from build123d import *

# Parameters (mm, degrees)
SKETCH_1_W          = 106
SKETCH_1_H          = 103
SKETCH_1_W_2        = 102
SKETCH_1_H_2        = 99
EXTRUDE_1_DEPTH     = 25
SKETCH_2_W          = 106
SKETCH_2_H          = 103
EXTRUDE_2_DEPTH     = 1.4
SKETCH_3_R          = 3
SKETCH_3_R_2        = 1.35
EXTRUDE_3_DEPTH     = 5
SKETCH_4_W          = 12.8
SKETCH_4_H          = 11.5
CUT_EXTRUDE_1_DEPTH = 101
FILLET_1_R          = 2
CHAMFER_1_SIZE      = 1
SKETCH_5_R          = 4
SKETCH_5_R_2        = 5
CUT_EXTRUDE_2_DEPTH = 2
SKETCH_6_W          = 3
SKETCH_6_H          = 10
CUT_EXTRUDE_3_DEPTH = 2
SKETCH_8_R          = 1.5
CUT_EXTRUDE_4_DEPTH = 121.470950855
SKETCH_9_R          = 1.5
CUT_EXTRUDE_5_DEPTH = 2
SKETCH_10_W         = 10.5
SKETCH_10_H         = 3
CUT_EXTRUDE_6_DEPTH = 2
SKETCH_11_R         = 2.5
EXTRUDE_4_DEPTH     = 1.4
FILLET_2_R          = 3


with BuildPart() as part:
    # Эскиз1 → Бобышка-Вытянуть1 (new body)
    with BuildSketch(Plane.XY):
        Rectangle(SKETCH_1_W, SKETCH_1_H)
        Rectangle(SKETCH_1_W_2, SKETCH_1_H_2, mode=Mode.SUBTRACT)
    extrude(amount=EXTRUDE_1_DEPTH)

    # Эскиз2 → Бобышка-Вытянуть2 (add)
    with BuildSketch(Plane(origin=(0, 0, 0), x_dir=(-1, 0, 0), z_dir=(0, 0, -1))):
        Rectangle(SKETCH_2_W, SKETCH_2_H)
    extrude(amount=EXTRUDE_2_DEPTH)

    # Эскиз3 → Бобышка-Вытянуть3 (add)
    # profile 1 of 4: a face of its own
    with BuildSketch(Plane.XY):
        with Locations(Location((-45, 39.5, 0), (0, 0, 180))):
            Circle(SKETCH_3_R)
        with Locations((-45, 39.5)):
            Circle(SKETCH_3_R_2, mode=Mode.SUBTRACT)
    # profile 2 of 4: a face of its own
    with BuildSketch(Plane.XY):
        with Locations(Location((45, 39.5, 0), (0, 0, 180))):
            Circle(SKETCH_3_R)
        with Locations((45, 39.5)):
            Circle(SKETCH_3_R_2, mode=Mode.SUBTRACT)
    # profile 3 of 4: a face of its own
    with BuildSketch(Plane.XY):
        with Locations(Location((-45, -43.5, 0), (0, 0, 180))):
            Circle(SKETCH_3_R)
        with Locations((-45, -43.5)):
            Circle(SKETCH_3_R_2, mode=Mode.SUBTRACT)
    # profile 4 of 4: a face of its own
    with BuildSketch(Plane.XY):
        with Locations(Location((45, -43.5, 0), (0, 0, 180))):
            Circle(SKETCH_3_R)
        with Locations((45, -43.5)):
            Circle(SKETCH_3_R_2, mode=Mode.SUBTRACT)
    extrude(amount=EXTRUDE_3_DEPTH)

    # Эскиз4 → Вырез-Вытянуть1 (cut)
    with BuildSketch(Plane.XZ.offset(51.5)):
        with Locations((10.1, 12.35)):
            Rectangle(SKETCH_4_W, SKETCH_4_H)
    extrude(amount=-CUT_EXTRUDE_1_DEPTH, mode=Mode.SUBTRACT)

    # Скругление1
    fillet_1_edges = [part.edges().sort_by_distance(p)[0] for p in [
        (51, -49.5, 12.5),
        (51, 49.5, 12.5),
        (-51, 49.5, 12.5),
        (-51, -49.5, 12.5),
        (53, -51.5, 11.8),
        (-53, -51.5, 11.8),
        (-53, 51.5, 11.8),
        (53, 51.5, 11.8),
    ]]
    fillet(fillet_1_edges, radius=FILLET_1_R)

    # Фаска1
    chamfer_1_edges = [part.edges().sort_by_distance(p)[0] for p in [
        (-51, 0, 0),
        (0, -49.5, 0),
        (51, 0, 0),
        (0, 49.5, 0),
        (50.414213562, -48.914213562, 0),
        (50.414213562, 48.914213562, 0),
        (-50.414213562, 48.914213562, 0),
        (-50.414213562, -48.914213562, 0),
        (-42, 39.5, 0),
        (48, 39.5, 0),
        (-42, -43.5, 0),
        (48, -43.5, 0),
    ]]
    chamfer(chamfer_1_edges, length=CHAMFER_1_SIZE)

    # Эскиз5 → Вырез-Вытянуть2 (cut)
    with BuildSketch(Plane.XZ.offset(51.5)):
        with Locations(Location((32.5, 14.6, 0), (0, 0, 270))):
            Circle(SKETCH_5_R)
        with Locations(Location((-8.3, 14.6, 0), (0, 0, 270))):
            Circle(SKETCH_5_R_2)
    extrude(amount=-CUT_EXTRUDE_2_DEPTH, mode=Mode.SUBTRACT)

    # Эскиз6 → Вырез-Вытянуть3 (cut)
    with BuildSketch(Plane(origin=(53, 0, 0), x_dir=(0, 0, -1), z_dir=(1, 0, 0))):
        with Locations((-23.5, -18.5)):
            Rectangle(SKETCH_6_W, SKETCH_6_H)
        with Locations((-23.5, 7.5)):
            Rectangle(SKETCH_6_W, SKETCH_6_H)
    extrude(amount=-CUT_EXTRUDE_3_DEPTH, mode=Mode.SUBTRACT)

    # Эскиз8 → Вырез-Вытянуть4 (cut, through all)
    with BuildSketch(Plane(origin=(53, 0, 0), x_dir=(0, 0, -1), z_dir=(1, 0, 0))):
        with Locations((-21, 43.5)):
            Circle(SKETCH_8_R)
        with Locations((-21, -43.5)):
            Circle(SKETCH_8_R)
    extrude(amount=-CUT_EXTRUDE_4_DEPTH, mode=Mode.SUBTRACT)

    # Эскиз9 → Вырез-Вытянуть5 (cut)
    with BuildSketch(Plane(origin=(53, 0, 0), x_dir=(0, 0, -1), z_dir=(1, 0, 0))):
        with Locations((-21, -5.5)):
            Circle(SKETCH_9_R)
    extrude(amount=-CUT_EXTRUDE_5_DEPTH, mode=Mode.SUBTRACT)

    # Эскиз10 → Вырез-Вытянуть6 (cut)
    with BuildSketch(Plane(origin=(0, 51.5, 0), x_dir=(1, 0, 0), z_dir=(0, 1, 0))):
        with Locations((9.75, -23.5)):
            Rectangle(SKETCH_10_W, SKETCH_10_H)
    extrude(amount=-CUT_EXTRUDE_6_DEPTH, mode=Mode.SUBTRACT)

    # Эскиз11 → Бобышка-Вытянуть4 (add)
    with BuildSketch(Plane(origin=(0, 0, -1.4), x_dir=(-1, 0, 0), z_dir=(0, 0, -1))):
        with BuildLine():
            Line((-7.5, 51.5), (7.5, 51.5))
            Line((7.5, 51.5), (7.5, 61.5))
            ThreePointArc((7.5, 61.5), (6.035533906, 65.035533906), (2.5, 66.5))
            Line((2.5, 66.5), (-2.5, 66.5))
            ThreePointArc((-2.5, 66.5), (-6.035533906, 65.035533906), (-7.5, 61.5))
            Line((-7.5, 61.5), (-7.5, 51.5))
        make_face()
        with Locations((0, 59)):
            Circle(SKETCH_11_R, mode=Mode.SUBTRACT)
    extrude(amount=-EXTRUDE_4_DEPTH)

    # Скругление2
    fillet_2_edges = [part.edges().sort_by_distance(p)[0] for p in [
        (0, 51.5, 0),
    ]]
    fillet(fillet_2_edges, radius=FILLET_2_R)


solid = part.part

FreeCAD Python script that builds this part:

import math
import FreeCAD as App
import Part
import Sketcher

V = App.Vector


def edges_at(feature, points):
    """Names of the edges that pass closest to the given points."""
    edges = feature.Shape.Edges
    near = lambda p: min(range(len(edges)), key=lambda i: edges[i].distToShape(Part.Vertex(*p))[0])
    return sorted({f"Edge{near(p) + 1}" for p in points})

doc = App.newDocument("Part")
params = doc.addObject("Spreadsheet::Sheet", "Params")
for row, (alias, value) in enumerate([
    ("sketch1_width", "106 mm"),
    ("sketch1_width2", "102 mm"),
    ("sketch1_height", "103 mm"),
    ("sketch1_height2", "99 mm"),
    ("pad1_length", "25 mm"),
    ("sketch2_width", "106 mm"),
    ("sketch2_height", "103 mm"),
    ("pad2_length", "1.4 mm"),
    ("sketch3_diameter", "6 mm"),
    ("sketch3_diameter2", "2.7 mm"),
    ("pad3_length", "5 mm"),
    ("sketch4_width", "12.8 mm"),
    ("sketch4_height", "11.5 mm"),
    ("pocket1_length", "101 mm"),
    ("fillet_radius", "2 mm"),
    ("chamfer_size", "1 mm"),
    ("sketch5_diameter", "8 mm"),
    ("sketch5_diameter2", "10 mm"),
    ("pocket2_length", "2 mm"),
    ("sketch6_width", "10 mm"),
    ("sketch6_height", "3 mm"),
    ("pocket3_length", "2 mm"),
    ("sketch7_diameter", "3 mm"),
    ("sketch8_diameter", "3 mm"),
    ("pocket5_length", "2 mm"),
    ("sketch9_height", "3 mm"),
    ("sketch9_width", "10.5 mm"),
    ("pocket6_length", "2 mm"),
    ("sketch10_diameter", "5 mm"),
    ("sketch10_radius", "5 mm"),
    ("sketch10_width", "15 mm"),
    ("sketch10_height", "10 mm"),
    ("pad4_length", "1.4 mm"),
    ("fillet2_radius", "3 mm"),
], start=1):
    params.set(f"A{row}", alias)
    params.set(f"B{row}", "=" + value)
    params.setAlias(f"B{row}", alias)

body = doc.addObject("PartDesign::Body", "Body")

# Sketch on XY plane
sketch1 = body.newObject("Sketcher::SketchObject", "Sketch")
sketch1.AttachmentSupport = (doc.getObject("XY_Plane"), [""])
sketch1.MapMode = "FlatFace"
sketch1.addGeometry(Part.LineSegment(V(-53, 52, 0), V(-53, -52, 0)), False)
sketch1.addGeometry(Part.LineSegment(V(-53, -52, 0), V(53, -52, 0)), False)
sketch1.addGeometry(Part.LineSegment(V(53, -52, 0), V(53, 52, 0)), False)
sketch1.addGeometry(Part.LineSegment(V(53, 52, 0), V(-53, 52, 0)), False)
sketch1.addGeometry(Part.LineSegment(V(51, -50, 0), V(-51, -50, 0)), False)
sketch1.addGeometry(Part.LineSegment(V(-51, -50, 0), V(-51, 50, 0)), False)
sketch1.addGeometry(Part.LineSegment(V(-51, 50, 0), V(51, 50, 0)), False)
sketch1.addGeometry(Part.LineSegment(V(51, 50, 0), V(51, -50, 0)), False)
sketch1.addConstraint(Sketcher.Constraint("Coincident", 0, 2, 1, 1))
sketch1.addConstraint(Sketcher.Constraint("Coincident", 1, 2, 2, 1))
sketch1.addConstraint(Sketcher.Constraint("Coincident", 2, 2, 3, 1))
sketch1.addConstraint(Sketcher.Constraint("Coincident", 3, 2, 0, 1))
sketch1.addConstraint(Sketcher.Constraint("Coincident", 4, 2, 5, 1))
sketch1.addConstraint(Sketcher.Constraint("Coincident", 5, 2, 6, 1))
sketch1.addConstraint(Sketcher.Constraint("Coincident", 6, 2, 7, 1))
sketch1.addConstraint(Sketcher.Constraint("Coincident", 7, 2, 4, 1))
sketch1.addConstraint(Sketcher.Constraint("Vertical", 0))
sketch1.addConstraint(Sketcher.Constraint("Horizontal", 1))
sketch1.addConstraint(Sketcher.Constraint("Vertical", 2))
sketch1.addConstraint(Sketcher.Constraint("Horizontal", 3))
sketch1.addConstraint(Sketcher.Constraint("Horizontal", 4))
sketch1.addConstraint(Sketcher.Constraint("Vertical", 5))
sketch1.addConstraint(Sketcher.Constraint("Horizontal", 6))
sketch1.addConstraint(Sketcher.Constraint("Vertical", 7))
sketch1.addConstraint(Sketcher.Constraint("Symmetric", 0, 2, 2, 2, -1, 1))
sketch1.addConstraint(Sketcher.Constraint("Symmetric", 4, 2, 6, 2, -1, 1))
sketch1.addConstraint(Sketcher.Constraint("DistanceX", 1, 1, 1, 2, 106.0))
sketch1.addConstraint(Sketcher.Constraint("DistanceX", 4, 2, 4, 1, 102.0))
sketch1.addConstraint(Sketcher.Constraint("DistanceY", 0, 2, 0, 1, 103.0))
sketch1.addConstraint(Sketcher.Constraint("DistanceY", 5, 1, 5, 2, 99.0))
sketch1.setExpression("Constraints[18]", "Params.sketch1_width")
sketch1.setExpression("Constraints[19]", "Params.sketch1_width2")
sketch1.setExpression("Constraints[20]", "Params.sketch1_height")
sketch1.setExpression("Constraints[21]", "Params.sketch1_height2")
pad1 = body.newObject("PartDesign::Pad", "Pad")
pad1.Profile = sketch1
pad1.setExpression("Length", "Params.pad1_length")

# Sketch on XY plane
sketch2 = body.newObject("Sketcher::SketchObject", "Sketch001")
sketch2.AttachmentSupport = (doc.getObject("XY_Plane"), [""])
sketch2.MapMode = "FlatFace"
sketch2.addGeometry(Part.LineSegment(V(53, 52, 0), V(53, -52, 0)), False)
sketch2.addGeometry(Part.LineSegment(V(53, -52, 0), V(-53, -52, 0)), False)
sketch2.addGeometry(Part.LineSegment(V(-53, -52, 0), V(-53, 52, 0)), False)
sketch2.addGeometry(Part.LineSegment(V(-53, 52, 0), V(53, 52, 0)), False)
sketch2.addConstraint(Sketcher.Constraint("Coincident", 0, 2, 1, 1))
sketch2.addConstraint(Sketcher.Constraint("Coincident", 1, 2, 2, 1))
sketch2.addConstraint(Sketcher.Constraint("Coincident", 2, 2, 3, 1))
sketch2.addConstraint(Sketcher.Constraint("Coincident", 3, 2, 0, 1))
sketch2.addConstraint(Sketcher.Constraint("Vertical", 0))
sketch2.addConstraint(Sketcher.Constraint("Horizontal", 1))
sketch2.addConstraint(Sketcher.Constraint("Vertical", 2))
sketch2.addConstraint(Sketcher.Constraint("Horizontal", 3))
sketch2.addConstraint(Sketcher.Constraint("Symmetric", 0, 2, 2, 2, -1, 1))
sketch2.addConstraint(Sketcher.Constraint("DistanceX", 1, 2, 1, 1, 106.0))
sketch2.addConstraint(Sketcher.Constraint("DistanceY", 0, 2, 0, 1, 103.0))
sketch2.setExpression("Constraints[9]", "Params.sketch2_width")
sketch2.setExpression("Constraints[10]", "Params.sketch2_height")
pad2 = body.newObject("PartDesign::Pad", "Pad001")
pad2.Profile = sketch2
pad2.setExpression("Length", "Params.pad2_length")
pad2.Reversed = True

# Sketch on XY plane
sketch3 = body.newObject("Sketcher::SketchObject", "Sketch002")
sketch3.AttachmentSupport = (doc.getObject("XY_Plane"), [""])
sketch3.MapMode = "FlatFace"
sketch3.addGeometry(Part.Circle(V(-45, 39.5, 0), V(0, 0, 1), 3), False)
sketch3.addGeometry(Part.Circle(V(-45, 39.5, 0), V(0, 0, 1), 1.4), False)
sketch3.addGeometry(Part.Circle(V(45, 39.5, 0), V(0, 0, 1), 3), False)
sketch3.addGeometry(Part.Circle(V(45, 39.5, 0), V(0, 0, 1), 1.4), False)
sketch3.addGeometry(Part.Circle(V(-45, -43.5, 0), V(0, 0, 1), 3), False)
sketch3.addGeometry(Part.Circle(V(-45, -43.5, 0), V(0, 0, 1), 1.4), False)
sketch3.addGeometry(Part.Circle(V(45, -43.5, 0), V(0, 0, 1), 3), False)
sketch3.addGeometry(Part.Circle(V(45, -43.5, 0), V(0, 0, 1), 1.4), False)
sketch3.addConstraint(Sketcher.Constraint("Coincident", 1, 3, 0, 3))
sketch3.addConstraint(Sketcher.Constraint("Coincident", 3, 3, 2, 3))
sketch3.addConstraint(Sketcher.Constraint("Coincident", 5, 3, 4, 3))
sketch3.addConstraint(Sketcher.Constraint("Coincident", 7, 3, 6, 3))
sketch3.addConstraint(Sketcher.Constraint("Equal", 0, 2))
sketch3.addConstraint(Sketcher.Constraint("Equal", 1, 3))
sketch3.addConstraint(Sketcher.Constraint("Equal", 2, 4))
sketch3.addConstraint(Sketcher.Constraint("Equal", 3, 5))
sketch3.addConstraint(Sketcher.Constraint("Equal", 4, 6))
sketch3.addConstraint(Sketcher.Constraint("Equal", 5, 7))
sketch3.addConstraint(Sketcher.Constraint("Symmetric", 0, 3, 2, 3, -2))
sketch3.addConstraint(Sketcher.Constraint("Symmetric", 4, 3, 6, 3, -2))
sketch3.addConstraint(Sketcher.Constraint("Vertical", 1, 3, 4, 3))
sketch3.addConstraint(Sketcher.Constraint("Diameter", 0, 6.0))
sketch3.addConstraint(Sketcher.Constraint("Diameter", 1, 2.7))
sketch3.addConstraint(Sketcher.Constraint("DistanceX", 0, 3, -1, 1, 45.0))
sketch3.addConstraint(Sketcher.Constraint("DistanceY", 4, 3, 0, 3, 83.0))
sketch3.addConstraint(Sketcher.Constraint("DistanceY", -1, 1, 0, 3, 39.5))
sketch3.setExpression("Constraints[13]", "Params.sketch3_diameter")
sketch3.setExpression("Constraints[14]", "Params.sketch3_diameter2")
pad3 = body.newObject("PartDesign::Pad", "Pad002")
pad3.Profile = sketch3
pad3.setExpression("Length", "Params.pad3_length")

# Sketch on XZ plane
sketch4 = body.newObject("Sketcher::SketchObject", "Sketch003")
sketch4.AttachmentSupport = (doc.getObject("XZ_Plane"), [""])
sketch4.MapMode = "FlatFace"
sketch4.AttachmentOffset = App.Placement(V(0, 0, 51.5), App.Rotation())
sketch4.addGeometry(Part.LineSegment(V(4, 18, 0), V(4, 7, 0)), False)
sketch4.addGeometry(Part.LineSegment(V(4, 7, 0), V(16, 7, 0)), False)
sketch4.addGeometry(Part.LineSegment(V(16, 7, 0), V(16, 18, 0)), False)
sketch4.addGeometry(Part.LineSegment(V(16, 18, 0), V(4, 18, 0)), False)
sketch4.addConstraint(Sketcher.Constraint("Coincident", 0, 2, 1, 1))
sketch4.addConstraint(Sketcher.Constraint("Coincident", 1, 2, 2, 1))
sketch4.addConstraint(Sketcher.Constraint("Coincident", 2, 2, 3, 1))
sketch4.addConstraint(Sketcher.Constraint("Coincident", 3, 2, 0, 1))
sketch4.addConstraint(Sketcher.Constraint("Vertical", 0))
sketch4.addConstraint(Sketcher.Constraint("Horizontal", 1))
sketch4.addConstraint(Sketcher.Constraint("Vertical", 2))
sketch4.addConstraint(Sketcher.Constraint("Horizontal", 3))
sketch4.addConstraint(Sketcher.Constraint("DistanceX", 1, 1, 1, 2, 12.8))
sketch4.addConstraint(Sketcher.Constraint("DistanceY", 0, 2, 0, 1, 11.5))
sketch4.addConstraint(Sketcher.Constraint("DistanceX", -1, 1, 0, 2, 3.7))
sketch4.addConstraint(Sketcher.Constraint("DistanceY", -1, 1, 0, 2, 6.6))
sketch4.setExpression("Constraints[8]", "Params.sketch4_width")
sketch4.setExpression("Constraints[9]", "Params.sketch4_height")
pocket1 = body.newObject("PartDesign::Pocket", "Pocket")
pocket1.Profile = sketch4
pocket1.setExpression("Length", "Params.pocket1_length")
doc.recompute()

fillet = body.newObject("PartDesign::Fillet", "Fillet")
fillet.Base = (pocket1, edges_at(pocket1, [
    (51, -49.5, 12.5),
    (51, 49.5, 12.5),
    (-51, 49.5, 12.5),
    (-51, -49.5, 12.5),
    (53, -51.5, 11.8),
    (-53, -51.5, 11.8),
    (-53, 51.5, 11.8),
    (53, 51.5, 11.8),
]))
fillet.setExpression("Radius", "Params.fillet_radius")
doc.recompute()

chamfer = body.newObject("PartDesign::Chamfer", "Chamfer")
chamfer.Base = (fillet, edges_at(fillet, [
    (-51, 0, 0),
    (0, -49.5, 0),
    (51, 0, 0),
    (0, 49.5, 0),
    (50.414, -48.914, 0),
    (50.414, 48.914, 0),
    (-50.414, 48.914, 0),
    (-50.414, -48.914, 0),
    (-42, 39.5, 0),
    (48, 39.5, 0),
    (-42, -43.5, 0),
    (48, -43.5, 0),
]))
chamfer.setExpression("Size", "Params.chamfer_size")

# Sketch on XZ plane
sketch5 = body.newObject("Sketcher::SketchObject", "Sketch004")
sketch5.AttachmentSupport = (doc.getObject("XZ_Plane"), [""])
sketch5.MapMode = "FlatFace"
sketch5.AttachmentOffset = App.Placement(V(0, 0, 51.5), App.Rotation())
sketch5.addGeometry(Part.Circle(V(32.5, 14.6, 0), V(0, 0, 1), 4), False)
sketch5.addGeometry(Part.Circle(V(-8.3, 14.6, 0), V(0, 0, 1), 5), False)
sketch5.addConstraint(Sketcher.Constraint("Horizontal", 0, 3, 1, 3))
sketch5.addConstraint(Sketcher.Constraint("Diameter", 0, 8.0))
sketch5.addConstraint(Sketcher.Constraint("Diameter", 1, 10.0))
sketch5.addConstraint(Sketcher.Constraint("DistanceX", -1, 1, 0, 3, 32.5))
sketch5.addConstraint(Sketcher.Constraint("DistanceY", -1, 1, 0, 3, 14.6))
sketch5.addConstraint(Sketcher.Constraint("DistanceX", 1, 3, -1, 1, 8.3))
sketch5.setExpression("Constraints[1]", "Params.sketch5_diameter")
sketch5.setExpression("Constraints[2]", "Params.sketch5_diameter2")
pocket2 = body.newObject("PartDesign::Pocket", "Pocket001")
pocket2.Profile = sketch5
pocket2.setExpression("Length", "Params.pocket2_length")

# Sketch on YZ plane
sketch6 = body.newObject("Sketcher::SketchObject", "Sketch005")
sketch6.AttachmentSupport = (doc.getObject("YZ_Plane"), [""])
sketch6.MapMode = "FlatFace"
sketch6.AttachmentOffset = App.Placement(V(0, 0, 53), App.Rotation())
sketch6.addGeometry(Part.LineSegment(V(-13.5, 25, 0), V(-23.5, 25, 0)), False)
sketch6.addGeometry(Part.LineSegment(V(-23.5, 25, 0), V(-23.5, 22, 0)), False)
sketch6.addGeometry(Part.LineSegment(V(-23.5, 22, 0), V(-13.5, 22, 0)), False)
sketch6.addGeometry(Part.LineSegment(V(-13.5, 22, 0), V(-13.5, 25, 0)), False)
sketch6.addGeometry(Part.LineSegment(V(12.5, 25, 0), V(2.5, 25, 0)), False)
sketch6.addGeometry(Part.LineSegment(V(2.5, 25, 0), V(2.5, 22, 0)), False)
sketch6.addGeometry(Part.LineSegment(V(2.5, 22, 0), V(12.5, 22, 0)), False)
sketch6.addGeometry(Part.LineSegment(V(12.5, 22, 0), V(12.5, 25, 0)), False)
sketch6.addConstraint(Sketcher.Constraint("Coincident", 0, 2, 1, 1))
sketch6.addConstraint(Sketcher.Constraint("Coincident", 1, 2, 2, 1))
sketch6.addConstraint(Sketcher.Constraint("Coincident", 2, 2, 3, 1))
sketch6.addConstraint(Sketcher.Constraint("Coincident", 3, 2, 0, 1))
sketch6.addConstraint(Sketcher.Constraint("Coincident", 4, 2, 5, 1))
sketch6.addConstraint(Sketcher.Constraint("Coincident", 5, 2, 6, 1))
sketch6.addConstraint(Sketcher.Constraint("Coincident", 6, 2, 7, 1))
sketch6.addConstraint(Sketcher.Constraint("Coincident", 7, 2, 4, 1))
sketch6.addConstraint(Sketcher.Constraint("Horizontal", 0))
sketch6.addConstraint(Sketcher.Constraint("Vertical", 1))
sketch6.addConstraint(Sketcher.Constraint("Horizontal", 2))
sketch6.addConstraint(Sketcher.Constraint("Vertical", 3))
sketch6.addConstraint(Sketcher.Constraint("Horizontal", 4))
sketch6.addConstraint(Sketcher.Constraint("Vertical", 5))
sketch6.addConstraint(Sketcher.Constraint("Horizontal", 6))
sketch6.addConstraint(Sketcher.Constraint("Vertical", 7))
sketch6.addConstraint(Sketcher.Constraint("Horizontal", 3, 2, 4, 2))
sketch6.addConstraint(Sketcher.Constraint("Horizontal", 2, 2, 5, 2))
sketch6.addConstraint(Sketcher.Constraint("Equal", 2, 4))
sketch6.addConstraint(Sketcher.Constraint("DistanceX", 0, 2, 0, 1, 10.0))
sketch6.addConstraint(Sketcher.Constraint("DistanceY", 1, 2, 1, 1, 3.0))
sketch6.addConstraint(Sketcher.Constraint("DistanceY", -1, 1, 0, 2, 25.0))
sketch6.addConstraint(Sketcher.Constraint("DistanceX", 3, 2, 4, 2, 16.0))
sketch6.addConstraint(Sketcher.Constraint("DistanceX", 0, 2, -1, 1, 23.5))
sketch6.setExpression("Constraints[19]", "Params.sketch6_width")
sketch6.setExpression("Constraints[20]", "Params.sketch6_height")
pocket3 = body.newObject("PartDesign::Pocket", "Pocket002")
pocket3.Profile = sketch6
pocket3.setExpression("Length", "Params.pocket3_length")

# Sketch on YZ plane
sketch7 = body.newObject("Sketcher::SketchObject", "Sketch006")
sketch7.AttachmentSupport = (doc.getObject("YZ_Plane"), [""])
sketch7.MapMode = "FlatFace"
sketch7.AttachmentOffset = App.Placement(V(0, 0, 53), App.Rotation())
sketch7.addGeometry(Part.Circle(V(43.5, 21, 0), V(0, 0, 1), 1.5), False)
sketch7.addGeometry(Part.Circle(V(-43.5, 21, 0), V(0, 0, 1), 1.5), False)
sketch7.addConstraint(Sketcher.Constraint("Equal", 0, 1))
sketch7.addConstraint(Sketcher.Constraint("Symmetric", 0, 3, 1, 3, -2))
sketch7.addConstraint(Sketcher.Constraint("Diameter", 0, 3.0))
sketch7.addConstraint(Sketcher.Constraint("DistanceY", -1, 1, 0, 3, 21.0))
sketch7.addConstraint(Sketcher.Constraint("DistanceX", 1, 3, 0, 3, 87.0))
sketch7.setExpression("Constraints[2]", "Params.sketch7_diameter")
pocket4 = body.newObject("PartDesign::Pocket", "Pocket003")
pocket4.Profile = sketch7
pocket4.Type = "ThroughAll"

# Sketch on YZ plane
sketch8 = body.newObject("Sketcher::SketchObject", "Sketch007")
sketch8.AttachmentSupport = (doc.getObject("YZ_Plane"), [""])
sketch8.MapMode = "FlatFace"
sketch8.AttachmentOffset = App.Placement(V(0, 0, 53), App.Rotation())
sketch8.addGeometry(Part.Circle(V(-5.5, 21, 0), V(0, 0, 1), 1.5), False)
sketch8.addConstraint(Sketcher.Constraint("Diameter", 0, 3.0))
sketch8.addConstraint(Sketcher.Constraint("DistanceY", -1, 1, 0, 3, 21.0))
sketch8.addConstraint(Sketcher.Constraint("DistanceX", 0, 3, -1, 1, 5.5))
sketch8.setExpression("Constraints[0]", "Params.sketch8_diameter")
pocket5 = body.newObject("PartDesign::Pocket", "Pocket004")
pocket5.Profile = sketch8
pocket5.setExpression("Length", "Params.pocket5_length")

# Sketch on XZ plane
sketch9 = body.newObject("Sketcher::SketchObject", "Sketch008")
sketch9.AttachmentSupport = (doc.getObject("XZ_Plane"), [""])
sketch9.MapMode = "FlatFace"
sketch9.AttachmentOffset = App.Placement(V(0, 0, -51.5), App.Rotation())
sketch9.addGeometry(Part.LineSegment(V(4.5, 22, 0), V(4.5, 25, 0)), False)
sketch9.addGeometry(Part.LineSegment(V(4.5, 25, 0), V(15, 25, 0)), False)
sketch9.addGeometry(Part.LineSegment(V(15, 25, 0), V(15, 22, 0)), False)
sketch9.addGeometry(Part.LineSegment(V(15, 22, 0), V(4.5, 22, 0)), False)
sketch9.addConstraint(Sketcher.Constraint("Coincident", 0, 2, 1, 1))
sketch9.addConstraint(Sketcher.Constraint("Coincident", 1, 2, 2, 1))
sketch9.addConstraint(Sketcher.Constraint("Coincident", 2, 2, 3, 1))
sketch9.addConstraint(Sketcher.Constraint("Coincident", 3, 2, 0, 1))
sketch9.addConstraint(Sketcher.Constraint("Vertical", 0))
sketch9.addConstraint(Sketcher.Constraint("Horizontal", 1))
sketch9.addConstraint(Sketcher.Constraint("Vertical", 2))
sketch9.addConstraint(Sketcher.Constraint("Horizontal", 3))
sketch9.addConstraint(Sketcher.Constraint("DistanceY", 0, 1, 0, 2, 3.0))
sketch9.addConstraint(Sketcher.Constraint("DistanceX", 1, 1, 1, 2, 10.5))
sketch9.addConstraint(Sketcher.Constraint("DistanceY", -1, 1, 0, 2, 25.0))
sketch9.addConstraint(Sketcher.Constraint("DistanceX", -1, 1, 1, 2, 15.0))
sketch9.setExpression("Constraints[8]", "Params.sketch9_height")
sketch9.setExpression("Constraints[9]", "Params.sketch9_width")
pocket6 = body.newObject("PartDesign::Pocket", "Pocket005")
pocket6.Profile = sketch9
pocket6.setExpression("Length", "Params.pocket6_length")
pocket6.Reversed = True

# Sketch on XY plane
sketch10 = body.newObject("Sketcher::SketchObject", "Sketch009")
sketch10.AttachmentSupport = (doc.getObject("XY_Plane"), [""])
sketch10.MapMode = "FlatFace"
sketch10.AttachmentOffset = App.Placement(V(0, 0, -1.4), App.Rotation())
sketch10.addGeometry(Part.LineSegment(V(7.5, 51.5, 0), V(-7.5, 51.5, 0)), False)
sketch10.addGeometry(Part.LineSegment(V(-7.5, 51.5, 0), V(-7.5, 61.5, 0)), False)
sketch10.addGeometry(Part.ArcOfCircle(Part.Circle(V(-2.5, 61.5, 0), V(0, 0, 1), 5), math.radians(90), math.radians(180)), False)
sketch10.addGeometry(Part.LineSegment(V(-2.5, 66.5, 0), V(2.5, 66.5, 0)), False)
sketch10.addGeometry(Part.ArcOfCircle(Part.Circle(V(2.5, 61.5, 0), V(0, 0, 1), 5), math.radians(0), math.radians(90)), False)
sketch10.addGeometry(Part.LineSegment(V(7.5, 61.5, 0), V(7.5, 51.5, 0)), False)
sketch10.addGeometry(Part.Circle(V(0, 59, 0), V(0, 0, 1), 2.5), False)
sketch10.addConstraint(Sketcher.Constraint("Coincident", 0, 2, 1, 1))
sketch10.addConstraint(Sketcher.Constraint("Tangent", 1, 2, 2, 2))
sketch10.addConstraint(Sketcher.Constraint("Tangent", 2, 1, 3, 1))
sketch10.addConstraint(Sketcher.Constraint("Tangent", 3, 2, 4, 2))
sketch10.addConstraint(Sketcher.Constraint("Tangent", 4, 1, 5, 1))
sketch10.addConstraint(Sketcher.Constraint("Coincident", 5, 2, 0, 1))
sketch10.addConstraint(Sketcher.Constraint("Horizontal", 0))
sketch10.addConstraint(Sketcher.Constraint("Vertical", 1))
sketch10.addConstraint(Sketcher.Constraint("Horizontal", 3))
sketch10.addConstraint(Sketcher.Constraint("Vertical", 5))
sketch10.addConstraint(Sketcher.Constraint("Equal", 2, 4))
sketch10.addConstraint(Sketcher.Constraint("PointOnObject", 6, 3, -2))
sketch10.addConstraint(Sketcher.Constraint("Diameter", 6, 5.0))
sketch10.addConstraint(Sketcher.Constraint("Radius", 2, 5.0))
sketch10.addConstraint(Sketcher.Constraint("DistanceX", 0, 2, 0, 1, 15.0))
sketch10.addConstraint(Sketcher.Constraint("DistanceY", 1, 1, 1, 2, 10.0))
sketch10.addConstraint(Sketcher.Constraint("DistanceY", -1, 1, 6, 3, 59.0))
sketch10.addConstraint(Sketcher.Constraint("DistanceX", 2, 3, -1, 1, 2.5))
sketch10.addConstraint(Sketcher.Constraint("DistanceY", -1, 1, 2, 3, 61.5))
sketch10.setExpression("Constraints[12]", "Params.sketch10_diameter")
sketch10.setExpression("Constraints[13]", "Params.sketch10_radius")
sketch10.setExpression("Constraints[14]", "Params.sketch10_width")
sketch10.setExpression("Constraints[15]", "Params.sketch10_height")
pad4 = body.newObject("PartDesign::Pad", "Pad003")
pad4.Profile = sketch10
pad4.setExpression("Length", "Params.pad4_length")
doc.recompute()

fillet2 = body.newObject("PartDesign::Fillet", "Fillet001")
fillet2.Base = (pad4, edges_at(pad4, [(0, 51.5, 0)]))
fillet2.setExpression("Radius", "Params.fillet2_radius")

doc.recompute()
